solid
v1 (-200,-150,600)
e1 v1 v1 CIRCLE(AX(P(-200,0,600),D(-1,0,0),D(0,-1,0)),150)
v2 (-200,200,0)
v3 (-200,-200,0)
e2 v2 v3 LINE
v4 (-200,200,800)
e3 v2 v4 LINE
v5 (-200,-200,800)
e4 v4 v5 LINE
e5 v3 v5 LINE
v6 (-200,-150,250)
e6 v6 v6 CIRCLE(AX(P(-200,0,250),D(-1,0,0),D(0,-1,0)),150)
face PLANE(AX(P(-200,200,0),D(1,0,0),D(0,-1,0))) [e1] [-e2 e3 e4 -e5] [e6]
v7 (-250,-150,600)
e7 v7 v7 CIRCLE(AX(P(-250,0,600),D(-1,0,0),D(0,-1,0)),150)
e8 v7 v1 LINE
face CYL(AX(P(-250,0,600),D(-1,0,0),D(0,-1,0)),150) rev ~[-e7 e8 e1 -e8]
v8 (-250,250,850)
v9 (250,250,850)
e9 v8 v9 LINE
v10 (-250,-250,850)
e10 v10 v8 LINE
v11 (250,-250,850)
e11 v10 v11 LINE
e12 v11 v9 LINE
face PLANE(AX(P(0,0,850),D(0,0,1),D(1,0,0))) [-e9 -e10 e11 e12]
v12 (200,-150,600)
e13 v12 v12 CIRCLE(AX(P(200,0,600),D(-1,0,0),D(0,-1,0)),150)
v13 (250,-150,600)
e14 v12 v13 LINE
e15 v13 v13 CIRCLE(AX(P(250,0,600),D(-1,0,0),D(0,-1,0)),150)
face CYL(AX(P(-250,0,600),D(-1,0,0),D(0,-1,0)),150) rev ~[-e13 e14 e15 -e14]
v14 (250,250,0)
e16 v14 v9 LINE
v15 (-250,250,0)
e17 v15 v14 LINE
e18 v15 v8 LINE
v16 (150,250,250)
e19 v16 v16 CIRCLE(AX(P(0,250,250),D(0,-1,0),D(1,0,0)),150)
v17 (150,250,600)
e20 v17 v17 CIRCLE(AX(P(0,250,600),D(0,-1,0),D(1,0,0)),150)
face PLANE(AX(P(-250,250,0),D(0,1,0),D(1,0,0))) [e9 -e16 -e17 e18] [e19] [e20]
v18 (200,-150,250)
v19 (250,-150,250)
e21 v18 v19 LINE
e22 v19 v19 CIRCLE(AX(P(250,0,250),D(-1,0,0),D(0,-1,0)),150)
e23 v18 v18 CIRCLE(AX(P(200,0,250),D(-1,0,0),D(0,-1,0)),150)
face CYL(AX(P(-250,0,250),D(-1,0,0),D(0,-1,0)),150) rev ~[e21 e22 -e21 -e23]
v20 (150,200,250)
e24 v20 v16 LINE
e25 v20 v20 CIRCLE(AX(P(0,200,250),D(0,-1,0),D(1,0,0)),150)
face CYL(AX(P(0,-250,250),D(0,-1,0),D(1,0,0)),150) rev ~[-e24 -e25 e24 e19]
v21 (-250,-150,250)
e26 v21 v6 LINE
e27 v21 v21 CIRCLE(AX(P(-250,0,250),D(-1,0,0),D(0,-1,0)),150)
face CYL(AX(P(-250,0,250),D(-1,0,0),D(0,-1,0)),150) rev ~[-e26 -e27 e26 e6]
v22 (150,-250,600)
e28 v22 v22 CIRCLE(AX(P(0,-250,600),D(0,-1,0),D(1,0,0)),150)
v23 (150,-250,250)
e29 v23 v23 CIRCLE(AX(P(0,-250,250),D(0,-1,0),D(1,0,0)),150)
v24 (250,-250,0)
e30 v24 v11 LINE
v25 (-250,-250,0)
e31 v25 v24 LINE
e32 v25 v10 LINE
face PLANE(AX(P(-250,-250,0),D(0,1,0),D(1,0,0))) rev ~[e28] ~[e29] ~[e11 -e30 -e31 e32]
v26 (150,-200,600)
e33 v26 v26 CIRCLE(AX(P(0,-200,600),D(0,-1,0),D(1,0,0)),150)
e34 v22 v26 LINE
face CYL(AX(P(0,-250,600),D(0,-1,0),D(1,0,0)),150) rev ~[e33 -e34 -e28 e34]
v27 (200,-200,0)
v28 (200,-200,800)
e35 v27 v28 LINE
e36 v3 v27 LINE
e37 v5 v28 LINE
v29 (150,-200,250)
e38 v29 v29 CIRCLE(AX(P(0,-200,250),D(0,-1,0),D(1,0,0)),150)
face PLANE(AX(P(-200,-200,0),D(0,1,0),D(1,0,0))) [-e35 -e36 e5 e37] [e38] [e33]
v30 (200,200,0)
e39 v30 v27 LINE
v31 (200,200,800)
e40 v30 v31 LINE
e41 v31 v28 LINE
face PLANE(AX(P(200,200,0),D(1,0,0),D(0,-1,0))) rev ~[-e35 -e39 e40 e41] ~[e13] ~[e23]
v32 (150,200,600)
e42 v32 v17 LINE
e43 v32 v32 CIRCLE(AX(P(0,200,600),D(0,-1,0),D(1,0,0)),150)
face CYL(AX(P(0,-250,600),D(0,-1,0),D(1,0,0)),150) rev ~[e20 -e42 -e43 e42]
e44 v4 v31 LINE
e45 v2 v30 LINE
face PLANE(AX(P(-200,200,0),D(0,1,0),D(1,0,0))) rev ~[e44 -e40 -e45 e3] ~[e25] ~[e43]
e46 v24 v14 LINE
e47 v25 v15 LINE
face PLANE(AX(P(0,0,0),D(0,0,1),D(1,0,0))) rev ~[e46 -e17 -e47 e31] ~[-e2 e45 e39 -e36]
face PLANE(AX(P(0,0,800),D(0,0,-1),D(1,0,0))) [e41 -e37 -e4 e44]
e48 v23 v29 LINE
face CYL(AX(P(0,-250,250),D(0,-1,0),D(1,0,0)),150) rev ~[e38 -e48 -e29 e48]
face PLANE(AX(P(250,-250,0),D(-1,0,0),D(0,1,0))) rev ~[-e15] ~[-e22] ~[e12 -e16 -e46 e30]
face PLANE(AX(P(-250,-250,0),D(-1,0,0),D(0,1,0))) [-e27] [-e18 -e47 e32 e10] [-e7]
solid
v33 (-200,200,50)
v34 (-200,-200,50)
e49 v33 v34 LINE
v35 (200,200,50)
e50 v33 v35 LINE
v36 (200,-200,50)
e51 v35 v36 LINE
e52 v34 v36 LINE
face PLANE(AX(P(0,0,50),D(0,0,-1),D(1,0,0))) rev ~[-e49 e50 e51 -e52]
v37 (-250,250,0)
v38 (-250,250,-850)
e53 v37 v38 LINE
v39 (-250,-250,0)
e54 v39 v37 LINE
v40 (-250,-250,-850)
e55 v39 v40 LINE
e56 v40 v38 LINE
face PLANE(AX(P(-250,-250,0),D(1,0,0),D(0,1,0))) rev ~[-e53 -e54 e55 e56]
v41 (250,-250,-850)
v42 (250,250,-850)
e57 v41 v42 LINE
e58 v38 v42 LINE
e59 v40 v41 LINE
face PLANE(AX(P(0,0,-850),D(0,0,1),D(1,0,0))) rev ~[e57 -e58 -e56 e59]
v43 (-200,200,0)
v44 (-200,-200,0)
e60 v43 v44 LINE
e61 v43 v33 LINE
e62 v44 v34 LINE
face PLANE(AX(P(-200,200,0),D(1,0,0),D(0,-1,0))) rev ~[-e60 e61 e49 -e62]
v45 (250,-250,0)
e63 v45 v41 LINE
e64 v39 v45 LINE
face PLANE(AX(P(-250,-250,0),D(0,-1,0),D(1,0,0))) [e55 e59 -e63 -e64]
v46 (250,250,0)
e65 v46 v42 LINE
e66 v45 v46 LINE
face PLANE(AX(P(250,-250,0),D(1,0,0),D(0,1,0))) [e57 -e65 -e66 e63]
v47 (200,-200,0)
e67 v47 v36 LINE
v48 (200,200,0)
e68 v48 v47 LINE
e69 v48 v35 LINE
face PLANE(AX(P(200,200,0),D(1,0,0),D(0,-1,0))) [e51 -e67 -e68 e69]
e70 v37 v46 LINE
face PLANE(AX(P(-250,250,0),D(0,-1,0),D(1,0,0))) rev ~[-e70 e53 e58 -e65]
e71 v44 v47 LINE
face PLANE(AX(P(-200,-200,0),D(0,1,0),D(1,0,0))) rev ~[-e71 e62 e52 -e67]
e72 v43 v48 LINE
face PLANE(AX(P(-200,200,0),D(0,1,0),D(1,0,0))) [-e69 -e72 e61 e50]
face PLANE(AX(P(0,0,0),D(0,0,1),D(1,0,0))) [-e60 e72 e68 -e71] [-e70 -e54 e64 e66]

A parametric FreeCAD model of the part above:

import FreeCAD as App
import Part
import Sketcher
from FreeCAD import Vector


def add_polygon(sketch, points):
    """Adds a closed chain of lines whose ends are joined by coincident constraints."""
    first, n = sketch.GeometryCount, len(points)
    for a, b in zip(points, points[1:] + points[:1]):
        sketch.addGeometry(Part.LineSegment(App.Vector(*a, 0), App.Vector(*b, 0)), False)
    for i in range(n):
        sketch.addConstraint(Sketcher.Constraint("Coincident", first + i, 2, first + (i + 1) % n, 1))

doc = App.newDocument("Part")
body = doc.addObject("PartDesign::Body", "Body")

sketch1 = doc.addObject("Sketcher::SketchObject", "Sketch")
body.addObject(sketch1)
sketch1.AttachmentSupport = (doc.XY_Plane, [""])
sketch1.MapMode = "FlatFace"
add_polygon(sketch1, [(-250, 250), (-250, -250), (250, -250), (250, 250)])
sketch1.addConstraint(Sketcher.Constraint("Vertical", 0))
sketch1.addConstraint(Sketcher.Constraint("Horizontal", 1))
sketch1.addConstraint(Sketcher.Constraint("Vertical", 2))
sketch1.addConstraint(Sketcher.Constraint("Horizontal", 3))
sketch1.addConstraint(Sketcher.Constraint("Symmetric", 0, 2, 2, 2, -1, 1))
sketch1.addConstraint(Sketcher.Constraint("Equal", 3, 0))
sketch1.addConstraint(Sketcher.Constraint("DistanceX", 1, 1, 1, 2, 500.0))
pad1 = doc.addObject("PartDesign::Pad", "Pad")
body.addObject(pad1)
pad1.Profile = sketch1
pad1.Length = 850

sketch2 = doc.addObject("Sketcher::SketchObject", "Sketch001")
body.addObject(sketch2)
sketch2.AttachmentSupport = (doc.XZ_Plane, [""])
sketch2.MapMode = "FlatFace"
sketch2.AttachmentOffset = App.Placement(Vector(0, 0, 250), App.Rotation())
sketch2.addGeometry(Part.Circle(Vector(0, 600, 0), Vector(0, 0, 1), 150), False)
sketch2.addGeometry(Part.Circle(Vector(0, 250, 0), Vector(0, 0, 1), 150), False)
sketch2.addConstraint(Sketcher.Constraint("Equal", 0, 1))
sketch2.addConstraint(Sketcher.Constraint("PointOnObject", 0, 3, -2))
sketch2.addConstraint(Sketcher.Constraint("PointOnObject", 1, 3, -2))
sketch2.addConstraint(Sketcher.Constraint("Diameter", 0, 300.0))
sketch2.addConstraint(Sketcher.Constraint("DistanceY", -1, 1, 0, 3, 600.0))
sketch2.addConstraint(Sketcher.Constraint("DistanceY", -1, 1, 1, 3, 250.0))
pocket1 = doc.addObject("PartDesign::Pocket", "Pocket")
body.addObject(pocket1)
pocket1.Profile = sketch2
pocket1.Type = "ThroughAll"

sketch3 = doc.addObject("Sketcher::SketchObject", "Sketch002")
body.addObject(sketch3)
sketch3.AttachmentSupport = (doc.YZ_Plane, [""])
sketch3.MapMode = "FlatFace"
sketch3.AttachmentOffset = App.Placement(Vector(0, 0, -250), App.Rotation())
sketch3.addGeometry(Part.Circle(Vector(0, 250, 0), Vector(0, 0, 1), 150), False)
sketch3.addGeometry(Part.Circle(Vector(0, 600, 0), Vector(0, 0, 1), 150), False)
sketch3.addConstraint(Sketcher.Constraint("Equal", 0, 1))
sketch3.addConstraint(Sketcher.Constraint("PointOnObject", 0, 3, -2))
sketch3.addConstraint(Sketcher.Constraint("PointOnObject", 1, 3, -2))
sketch3.addConstraint(Sketcher.Constraint("Diameter", 0, 300.0))
sketch3.addConstraint(Sketcher.Constraint("DistanceY", -1, 1, 0, 3, 250.0))
sketch3.addConstraint(Sketcher.Constraint("DistanceY", -1, 1, 1, 3, 600.0))
pocket2 = doc.addObject("PartDesign::Pocket", "Pocket001")
body.addObject(pocket2)
pocket2.Profile = sketch3
pocket2.Type = "ThroughAll"
pocket2.Reversed = True

sketch4 = doc.addObject("Sketcher::SketchObject", "Sketch003")
body.addObject(sketch4)
sketch4.AttachmentSupport = (doc.XY_Plane, [""])
sketch4.MapMode = "FlatFace"
add_polygon(sketch4, [(-200, -200), (-200, 200), (200, 200), (200, -200)])
sketch4.addConstraint(Sketcher.Constraint("Vertical", 0))
sketch4.addConstraint(Sketcher.Constraint("Horizontal", 1))
sketch4.addConstraint(Sketcher.Constraint("Vertical", 2))
sketch4.addConstraint(Sketcher.Constraint("Horizontal", 3))
sketch4.addConstraint(Sketcher.Constraint("Symmetric", 0, 2, 2, 2, -1, 1))
sketch4.addConstraint(Sketcher.Constraint("Equal", 3, 0))
sketch4.addConstraint(Sketcher.Constraint("DistanceX", 1, 1, 1, 2, 400.0))
pocket3 = doc.addObject("PartDesign::Pocket", "Pocket002")
body.addObject(pocket3)
pocket3.Profile = sketch4
pocket3.Length = 800
pocket3.Reversed = True
body2 = doc.addObject("PartDesign::Body", "Body001")

sketch5 = doc.addObject("Sketcher::SketchObject", "Sketch004")
body2.addObject(sketch5)
sketch5.AttachmentSupport = (doc.getObject("XY_Plane001"), [""])
sketch5.MapMode = "FlatFace"
add_polygon(sketch5, [(-250, 250), (-250, -250), (250, -250), (250, 250)])
sketch5.addConstraint(Sketcher.Constraint("Vertical", 0))
sketch5.addConstraint(Sketcher.Constraint("Horizontal", 1))
sketch5.addConstraint(Sketcher.Constraint("Vertical", 2))
sketch5.addConstraint(Sketcher.Constraint("Horizontal", 3))
sketch5.addConstraint(Sketcher.Constraint("Symmetric", 0, 2, 2, 2, -1, 1))
sketch5.addConstraint(Sketcher.Constraint("Equal", 3, 0))
sketch5.addConstraint(Sketcher.Constraint("DistanceX", 1, 1, 1, 2, 500.0))
pad2 = doc.addObject("PartDesign::Pad", "Pad001")
body2.addObject(pad2)
pad2.Profile = sketch5
pad2.Length = 850
pad2.Reversed = True

sketch6 = doc.addObject("Sketcher::SketchObject", "Sketch005")
body2.addObject(sketch6)
sketch6.AttachmentSupport = (doc.getObject("XY_Plane001"), [""])
sketch6.MapMode = "FlatFace"
add_polygon(sketch6, [(-200, -200), (-200, 200), (200, 200), (200, -200)])
sketch6.addConstraint(Sketcher.Constraint("Vertical", 0))
sketch6.addConstraint(Sketcher.Constraint("Horizontal", 1))
sketch6.addConstraint(Sketcher.Constraint("Vertical", 2))
sketch6.addConstraint(Sketcher.Constraint("Horizontal", 3))
sketch6.addConstraint(Sketcher.Constraint("Symmetric", 0, 2, 2, 2, -1, 1))
sketch6.addConstraint(Sketcher.Constraint("Equal", 3, 0))
sketch6.addConstraint(Sketcher.Constraint("DistanceX", 1, 1, 1, 2, 400.0))
pad3 = doc.addObject("PartDesign::Pad", "Pad002")
body2.addObject(pad3)
pad3.Profile = sketch6
pad3.Length = 50

doc.recompute()
